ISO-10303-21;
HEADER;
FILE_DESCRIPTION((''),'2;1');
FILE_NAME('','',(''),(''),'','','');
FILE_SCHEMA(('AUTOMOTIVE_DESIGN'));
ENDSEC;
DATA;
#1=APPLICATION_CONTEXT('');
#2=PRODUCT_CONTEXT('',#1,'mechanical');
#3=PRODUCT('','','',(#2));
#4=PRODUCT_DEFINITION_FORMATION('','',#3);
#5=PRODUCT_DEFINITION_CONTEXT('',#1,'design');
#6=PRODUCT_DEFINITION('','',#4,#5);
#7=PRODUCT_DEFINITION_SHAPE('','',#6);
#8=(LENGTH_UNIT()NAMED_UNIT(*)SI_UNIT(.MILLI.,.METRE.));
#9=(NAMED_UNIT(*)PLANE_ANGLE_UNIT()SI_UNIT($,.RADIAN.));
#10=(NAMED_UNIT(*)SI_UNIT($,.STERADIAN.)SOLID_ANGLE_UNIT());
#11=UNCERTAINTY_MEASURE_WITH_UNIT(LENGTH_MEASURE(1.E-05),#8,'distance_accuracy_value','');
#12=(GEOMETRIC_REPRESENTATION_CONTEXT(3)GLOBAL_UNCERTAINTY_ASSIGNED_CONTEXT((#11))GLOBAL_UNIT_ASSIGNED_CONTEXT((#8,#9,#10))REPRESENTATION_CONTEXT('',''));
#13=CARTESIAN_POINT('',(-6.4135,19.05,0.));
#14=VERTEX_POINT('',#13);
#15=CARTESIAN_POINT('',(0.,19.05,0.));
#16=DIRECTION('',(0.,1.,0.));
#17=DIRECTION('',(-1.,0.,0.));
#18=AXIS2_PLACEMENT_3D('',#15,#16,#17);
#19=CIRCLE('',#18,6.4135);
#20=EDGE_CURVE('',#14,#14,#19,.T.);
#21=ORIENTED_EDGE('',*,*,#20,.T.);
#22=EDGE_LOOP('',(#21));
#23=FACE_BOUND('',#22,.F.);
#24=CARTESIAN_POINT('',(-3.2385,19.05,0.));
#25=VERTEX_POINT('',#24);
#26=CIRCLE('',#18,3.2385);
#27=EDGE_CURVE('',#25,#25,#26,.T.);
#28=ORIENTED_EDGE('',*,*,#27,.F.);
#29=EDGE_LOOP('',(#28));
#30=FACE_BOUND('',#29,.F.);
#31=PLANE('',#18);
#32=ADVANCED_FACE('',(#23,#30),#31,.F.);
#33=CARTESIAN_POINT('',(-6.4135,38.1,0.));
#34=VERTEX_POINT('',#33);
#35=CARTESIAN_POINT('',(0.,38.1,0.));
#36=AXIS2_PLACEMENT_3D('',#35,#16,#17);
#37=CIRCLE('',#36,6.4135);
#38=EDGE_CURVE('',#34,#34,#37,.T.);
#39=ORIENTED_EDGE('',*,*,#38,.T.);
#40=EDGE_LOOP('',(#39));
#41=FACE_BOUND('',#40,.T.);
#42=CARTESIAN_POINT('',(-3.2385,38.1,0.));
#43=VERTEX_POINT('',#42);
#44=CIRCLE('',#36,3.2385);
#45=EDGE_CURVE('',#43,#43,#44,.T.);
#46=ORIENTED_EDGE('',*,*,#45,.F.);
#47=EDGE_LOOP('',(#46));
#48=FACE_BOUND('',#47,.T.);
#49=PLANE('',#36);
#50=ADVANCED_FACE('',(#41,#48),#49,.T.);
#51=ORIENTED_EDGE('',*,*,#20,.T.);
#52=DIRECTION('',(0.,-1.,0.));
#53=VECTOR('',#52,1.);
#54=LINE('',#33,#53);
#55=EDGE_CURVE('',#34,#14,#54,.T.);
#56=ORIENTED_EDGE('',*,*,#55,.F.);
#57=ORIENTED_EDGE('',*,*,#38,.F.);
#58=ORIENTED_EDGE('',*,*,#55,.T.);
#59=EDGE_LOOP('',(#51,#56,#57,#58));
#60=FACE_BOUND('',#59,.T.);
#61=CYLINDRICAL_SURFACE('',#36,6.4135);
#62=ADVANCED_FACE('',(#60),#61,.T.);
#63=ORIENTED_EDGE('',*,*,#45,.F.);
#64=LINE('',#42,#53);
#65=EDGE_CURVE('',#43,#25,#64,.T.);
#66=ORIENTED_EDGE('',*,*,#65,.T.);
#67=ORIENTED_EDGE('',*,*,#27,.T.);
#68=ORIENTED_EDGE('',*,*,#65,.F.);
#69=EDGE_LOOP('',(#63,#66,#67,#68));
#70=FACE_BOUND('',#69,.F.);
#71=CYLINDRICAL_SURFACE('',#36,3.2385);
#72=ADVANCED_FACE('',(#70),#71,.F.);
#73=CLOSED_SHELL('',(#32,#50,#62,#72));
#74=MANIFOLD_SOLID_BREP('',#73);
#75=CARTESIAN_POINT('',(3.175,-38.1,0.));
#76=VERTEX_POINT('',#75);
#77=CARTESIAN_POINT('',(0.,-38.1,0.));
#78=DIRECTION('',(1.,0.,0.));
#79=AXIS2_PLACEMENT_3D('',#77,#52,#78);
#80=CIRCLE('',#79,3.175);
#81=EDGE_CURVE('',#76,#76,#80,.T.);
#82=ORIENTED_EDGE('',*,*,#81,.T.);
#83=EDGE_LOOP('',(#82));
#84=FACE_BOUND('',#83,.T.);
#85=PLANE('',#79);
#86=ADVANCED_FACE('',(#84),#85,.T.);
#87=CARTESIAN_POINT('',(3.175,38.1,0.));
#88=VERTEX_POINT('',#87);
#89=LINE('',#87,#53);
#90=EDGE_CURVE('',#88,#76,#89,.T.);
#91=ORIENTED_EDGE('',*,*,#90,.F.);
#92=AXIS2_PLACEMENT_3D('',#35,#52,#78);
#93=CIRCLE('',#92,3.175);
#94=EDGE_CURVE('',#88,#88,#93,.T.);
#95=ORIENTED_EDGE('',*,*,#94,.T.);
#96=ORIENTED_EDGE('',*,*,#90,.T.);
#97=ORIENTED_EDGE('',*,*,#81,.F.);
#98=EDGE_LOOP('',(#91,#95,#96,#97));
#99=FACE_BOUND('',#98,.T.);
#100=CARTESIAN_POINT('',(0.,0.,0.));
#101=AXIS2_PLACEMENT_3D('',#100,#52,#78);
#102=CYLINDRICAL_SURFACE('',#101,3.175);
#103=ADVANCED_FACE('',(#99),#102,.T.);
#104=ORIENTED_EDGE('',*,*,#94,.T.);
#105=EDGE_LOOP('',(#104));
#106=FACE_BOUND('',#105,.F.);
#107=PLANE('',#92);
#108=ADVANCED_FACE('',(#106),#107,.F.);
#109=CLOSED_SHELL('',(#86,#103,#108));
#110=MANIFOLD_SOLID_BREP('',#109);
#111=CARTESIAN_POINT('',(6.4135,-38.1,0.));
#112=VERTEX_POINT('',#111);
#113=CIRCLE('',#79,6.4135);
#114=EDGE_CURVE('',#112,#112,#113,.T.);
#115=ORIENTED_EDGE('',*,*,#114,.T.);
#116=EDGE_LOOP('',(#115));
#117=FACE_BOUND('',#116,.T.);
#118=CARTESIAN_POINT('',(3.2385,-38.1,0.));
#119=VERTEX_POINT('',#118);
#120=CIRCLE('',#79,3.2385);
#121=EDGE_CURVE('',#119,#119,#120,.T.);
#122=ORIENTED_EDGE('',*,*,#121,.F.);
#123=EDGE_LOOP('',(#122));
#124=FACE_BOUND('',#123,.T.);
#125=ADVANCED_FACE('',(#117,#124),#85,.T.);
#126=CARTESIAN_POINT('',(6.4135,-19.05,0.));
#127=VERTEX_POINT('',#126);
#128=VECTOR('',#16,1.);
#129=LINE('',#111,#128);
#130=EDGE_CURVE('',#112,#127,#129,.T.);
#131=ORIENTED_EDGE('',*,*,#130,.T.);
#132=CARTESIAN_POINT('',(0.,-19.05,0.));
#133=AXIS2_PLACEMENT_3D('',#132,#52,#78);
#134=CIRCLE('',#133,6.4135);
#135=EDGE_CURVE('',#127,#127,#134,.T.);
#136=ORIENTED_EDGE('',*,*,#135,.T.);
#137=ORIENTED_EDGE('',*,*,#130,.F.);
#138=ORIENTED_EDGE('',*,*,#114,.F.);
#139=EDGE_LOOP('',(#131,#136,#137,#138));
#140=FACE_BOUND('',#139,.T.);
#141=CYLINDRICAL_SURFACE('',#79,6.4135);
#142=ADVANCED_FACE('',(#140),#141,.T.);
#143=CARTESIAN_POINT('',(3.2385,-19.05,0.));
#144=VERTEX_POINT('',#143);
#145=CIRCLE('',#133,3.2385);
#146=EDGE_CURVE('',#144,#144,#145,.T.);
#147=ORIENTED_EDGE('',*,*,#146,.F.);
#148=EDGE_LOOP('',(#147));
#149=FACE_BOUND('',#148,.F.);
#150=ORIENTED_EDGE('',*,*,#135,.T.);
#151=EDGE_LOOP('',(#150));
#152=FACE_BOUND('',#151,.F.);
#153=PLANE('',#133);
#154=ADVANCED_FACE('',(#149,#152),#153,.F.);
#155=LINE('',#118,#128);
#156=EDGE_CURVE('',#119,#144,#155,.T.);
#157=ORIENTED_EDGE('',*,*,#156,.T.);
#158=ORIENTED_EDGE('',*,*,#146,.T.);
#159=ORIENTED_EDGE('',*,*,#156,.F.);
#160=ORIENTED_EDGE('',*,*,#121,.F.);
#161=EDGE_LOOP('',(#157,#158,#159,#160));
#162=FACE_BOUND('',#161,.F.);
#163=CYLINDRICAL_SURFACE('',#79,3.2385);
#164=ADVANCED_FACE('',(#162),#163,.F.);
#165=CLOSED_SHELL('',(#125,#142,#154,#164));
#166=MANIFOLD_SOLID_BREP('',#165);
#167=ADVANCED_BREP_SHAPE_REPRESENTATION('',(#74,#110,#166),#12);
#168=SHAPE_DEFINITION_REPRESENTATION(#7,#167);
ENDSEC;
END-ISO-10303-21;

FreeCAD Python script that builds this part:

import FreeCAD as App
import Part
import Sketcher
Q = App.Units.Quantity

doc = App.newDocument("Part")
params = doc.addObject("Spreadsheet::Sheet", "Params")
for row, (alias, value) in enumerate([
    ("sketch1_diameter", "0.25 in"),
    ("pad1_length", "3 in"),
    ("sketch2_diameter", "0.505 in"),
    ("sketch2_diameter2", "0.255 in"),
    ("pad2_length", "0.75 in"),
    ("sketch3_diameter", "0.505 in"),
    ("sketch3_diameter2", "0.255 in"),
    ("pad3_length", "0.75 in"),
], start=1):
    params.set(f"A{row}", alias)
    params.set(f"B{row}", "=" + value)
    params.setAlias(f"B{row}", alias)

body = doc.addObject("PartDesign::Body", "Body")

# Sketch on XZ plane
sketch1 = doc.addObject("Sketcher::SketchObject", "Sketch")
body.addObject(sketch1)
sketch1.AttachmentSupport = (doc.XZ_Plane, [""])
sketch1.MapMode = "FlatFace"
sketch1.addGeometry(Part.Circle(App.Vector(0, 0, 0), App.Vector(0, 0, 1), 3.2), False)
sketch1.addConstraint(Sketcher.Constraint("Coincident", 0, 3, -1, 1))
sketch1.addConstraint(Sketcher.Constraint("Diameter", 0, Q("0.25 in")))
sketch1.setExpression("Constraints[1]", "Params.sketch1_diameter")
pad1 = doc.addObject("PartDesign::Pad", "Pad")
body.addObject(pad1)
pad1.Profile = sketch1
pad1.setExpression("Length", "Params.pad1_length")
pad1.Midplane = True
body2 = doc.addObject("PartDesign::Body", "Body001")

# Sketch on XZ plane
sketch2 = doc.addObject("Sketcher::SketchObject", "Sketch001")
body2.addObject(sketch2)
sketch2.AttachmentSupport = (doc.getObject("XZ_Plane001"), [""])
sketch2.MapMode = "FlatFace"
sketch2.AttachmentOffset = App.Placement(App.Vector(0, 0, 1.5 * 25.4), App.Rotation())
sketch2.addGeometry(Part.Circle(App.Vector(0, 0, 0), App.Vector(0, 0, 1), 6.4), False)
sketch2.addGeometry(Part.Circle(App.Vector(0, 0, 0), App.Vector(0, 0, 1), 3.2), False)
sketch2.addConstraint(Sketcher.Constraint("Coincident", 0, 3, -1, 1))
sketch2.addConstraint(Sketcher.Constraint("Coincident", 1, 3, -1, 1))
sketch2.addConstraint(Sketcher.Constraint("Diameter", 0, Q("0.505 in")))
sketch2.addConstraint(Sketcher.Constraint("Diameter", 1, Q("0.255 in")))
sketch2.setExpression("Constraints[2]", "Params.sketch2_diameter")
sketch2.setExpression("Constraints[3]", "Params.sketch2_diameter2")
pad2 = doc.addObject("PartDesign::Pad", "Pad001")
body2.addObject(pad2)
pad2.Profile = sketch2
pad2.setExpression("Length", "Params.pad2_length")
pad2.Reversed = True
body3 = doc.addObject("PartDesign::Body", "Body002")

# Sketch on XZ plane
sketch3 = doc.addObject("Sketcher::SketchObject", "Sketch002")
body3.addObject(sketch3)
sketch3.AttachmentSupport = (doc.getObject("XZ_Plane002"), [""])
sketch3.MapMode = "FlatFace"
sketch3.AttachmentOffset = App.Placement(App.Vector(0, 0, -1.5 * 25.4), App.Rotation())
sketch3.addGeometry(Part.Circle(App.Vector(0, 0, 0), App.Vector(0, 0, 1), 6.4), False)
sketch3.addGeometry(Part.Circle(App.Vector(0, 0, 0), App.Vector(0, 0, 1), 3.2), False)
sketch3.addConstraint(Sketcher.Constraint("Coincident", 0, 3, -1, 1))
sketch3.addConstraint(Sketcher.Constraint("Coincident", 1, 3, -1, 1))
sketch3.addConstraint(Sketcher.Constraint("Diameter", 0, Q("0.505 in")))
sketch3.addConstraint(Sketcher.Constraint("Diameter", 1, Q("0.255 in")))
sketch3.setExpression("Constraints[2]", "Params.sketch3_diameter")
sketch3.setExpression("Constraints[3]", "Params.sketch3_diameter2")
pad3 = doc.addObject("PartDesign::Pad", "Pad002")
body3.addObject(pad3)
pad3.Profile = sketch3
pad3.setExpression("Length", "Params.pad3_length")

doc.recompute()
